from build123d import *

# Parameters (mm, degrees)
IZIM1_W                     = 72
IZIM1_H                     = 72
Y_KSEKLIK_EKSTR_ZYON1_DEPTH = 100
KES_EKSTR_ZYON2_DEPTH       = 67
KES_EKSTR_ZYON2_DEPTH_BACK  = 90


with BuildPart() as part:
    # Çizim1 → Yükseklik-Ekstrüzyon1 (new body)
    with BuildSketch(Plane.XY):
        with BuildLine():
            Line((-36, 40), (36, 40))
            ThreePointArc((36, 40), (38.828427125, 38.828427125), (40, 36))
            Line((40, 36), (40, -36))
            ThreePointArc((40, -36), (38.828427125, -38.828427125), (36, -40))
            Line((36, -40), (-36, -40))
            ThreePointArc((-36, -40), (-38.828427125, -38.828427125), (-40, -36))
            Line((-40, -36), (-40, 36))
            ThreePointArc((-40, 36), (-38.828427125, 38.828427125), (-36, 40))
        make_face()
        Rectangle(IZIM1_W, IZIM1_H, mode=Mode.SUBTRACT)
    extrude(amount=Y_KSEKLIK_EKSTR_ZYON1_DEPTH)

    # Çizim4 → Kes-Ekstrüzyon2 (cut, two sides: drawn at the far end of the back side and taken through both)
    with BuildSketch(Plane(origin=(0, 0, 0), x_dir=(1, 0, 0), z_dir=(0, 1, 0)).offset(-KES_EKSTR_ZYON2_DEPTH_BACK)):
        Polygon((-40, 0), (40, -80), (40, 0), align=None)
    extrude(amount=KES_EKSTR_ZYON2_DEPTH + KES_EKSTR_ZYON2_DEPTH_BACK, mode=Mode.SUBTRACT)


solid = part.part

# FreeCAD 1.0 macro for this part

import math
import FreeCAD as App
import Part
import Sketcher

V = App.Vector
Q = App.Units.Quantity

doc = App.newDocument("Part")
params = doc.addObject("Spreadsheet::Sheet", "Params")
for row, (alias, value) in enumerate([
    ("sketch1_radius", "4 mm"),
    ("sketch1_width", "72 mm"),
    ("pad1_length", "100 mm"),
    ("sketch2_width", "80 mm"),
], start=1):
    params.set(f"A{row}", alias)
    params.set(f"B{row}", "=" + value)
    params.setAlias(f"B{row}", alias)

body = doc.addObject("PartDesign::Body", "Body")

# Sketch on XY plane
sketch1 = doc.addObject("Sketcher::SketchObject", "Sketch")
body.addObject(sketch1)
sketch1.AttachmentSupport = (doc.XY_Plane, [""])
sketch1.MapMode = "FlatFace"
sketch1.addGeometry([
    Part.LineSegment(V(36, 40, 0), V(-36, 40, 0)),  # 0
    Part.ArcOfCircle(Part.Circle(V(-36, 36, 0), V(0, 0, 1), 4), math.radians(90), math.radians(180)),  # 1
    Part.LineSegment(V(-40, 36, 0), V(-40, -36, 0)),  # 2
    Part.ArcOfCircle(Part.Circle(V(-36, -36, 0), V(0, 0, 1), 4), math.radians(180), math.radians(270)),  # 3
    Part.LineSegment(V(-36, -40, 0), V(36, -40, 0)),  # 4
    Part.ArcOfCircle(Part.Circle(V(36, -36, 0), V(0, 0, 1), 4), math.radians(-90), math.radians(0)),  # 5
    Part.LineSegment(V(40, -36, 0), V(40, 36, 0)),  # 6
    Part.ArcOfCircle(Part.Circle(V(36, 36, 0), V(0, 0, 1), 4), math.radians(0), math.radians(90)),  # 7
    Part.LineSegment(V(-36, -36, 0), V(-36, 36, 0)),  # 8
    Part.LineSegment(V(-36, 36, 0), V(36, 36, 0)),  # 9
    Part.LineSegment(V(36, 36, 0), V(36, -36, 0)),  # 10
    Part.LineSegment(V(36, -36, 0), V(-36, -36, 0)),  # 11
], False)
sketch1.addConstraint([
    Sketcher.Constraint("Tangent", 0, 2, 1, 1),
    Sketcher.Constraint("Tangent", 1, 2, 2, 1),
    Sketcher.Constraint("Tangent", 2, 2, 3, 1),
    Sketcher.Constraint("Tangent", 3, 2, 4, 1),
    Sketcher.Constraint("Tangent", 4, 2, 5, 1),
    Sketcher.Constraint("Tangent", 5, 2, 6, 1),
    Sketcher.Constraint("Tangent", 6, 2, 7, 1),
    Sketcher.Constraint("Tangent", 7, 2, 0, 1),
    Sketcher.Constraint("Coincident", 8, 2, 9, 1),
    Sketcher.Constraint("Coincident", 9, 2, 10, 1),
    Sketcher.Constraint("Coincident", 10, 2, 11, 1),
    Sketcher.Constraint("Coincident", 11, 2, 8, 1),
    Sketcher.Constraint("Horizontal", 0),
    Sketcher.Constraint("Vertical", 2),
    Sketcher.Constraint("Horizontal", 4),
    Sketcher.Constraint("Vertical", 6),
    Sketcher.Constraint("Vertical", 8),
    Sketcher.Constraint("Horizontal", 9),
    Sketcher.Constraint("Vertical", 10),
    Sketcher.Constraint("Horizontal", 11),
    Sketcher.Constraint("Coincident", 8, 2, 1, 3),
    Sketcher.Constraint("Coincident", 9, 2, 7, 3),
    Sketcher.Constraint("Coincident", 10, 2, 5, 3),
    Sketcher.Constraint("Equal", 1, 3),
    Sketcher.Constraint("Symmetric", 1, 3, 5, 3, -1, 1),
    Sketcher.Constraint("Equal", 11, 2),
    Sketcher.Constraint("Radius", 1, Q("4 mm")),
    Sketcher.Constraint("DistanceX", 0, 2, 0, 1, Q("72 mm")),
])
sketch1.setExpression("Constraints[26]", "Params.sketch1_radius")
sketch1.setExpression("Constraints[27]", "Params.sketch1_width")
pad1 = doc.addObject("PartDesign::Pad", "Pad")
body.addObject(pad1)
pad1.Profile = sketch1
pad1.setExpression("Length", "Params.pad1_length")

# Sketch on XZ plane
sketch2 = doc.addObject("Sketcher::SketchObject", "Sketch001")
body.addObject(sketch2)
sketch2.AttachmentSupport = (doc.XZ_Plane, [""])
sketch2.MapMode = "FlatFace"
sketch2.addGeometry([
    Part.LineSegment(V(-40, 0, 0), V(40, 80, 0)),
    Part.LineSegment(V(40, 80, 0), V(40, 0, 0)),
    Part.LineSegment(V(40, 0, 0), V(-40, 0, 0)),
], False)
sketch2.addConstraint([
    Sketcher.Constraint("Coincident", 0, 2, 1, 1),
    Sketcher.Constraint("Coincident", 1, 2, 2, 1),
    Sketcher.Constraint("Coincident", 2, 2, 0, 1),
    Sketcher.Constraint("Vertical", 1),
    Sketcher.Constraint("Horizontal", 2),
    Sketcher.Constraint("Symmetric", 1, 2, 2, 2, -1, 1),
    Sketcher.Constraint("Equal", 2, 1),
    Sketcher.Constraint("DistanceX", 2, 2, 2, 1, Q("80 mm")),
])
sketch2.setExpression("Constraints[7]", "Params.sketch2_width")
pocket1 = doc.addObject("PartDesign::Pocket", "Pocket")
body.addObject(pocket1)
pocket1.Profile = sketch2
pocket1.Type = "ThroughAll"
pocket1.Midplane = True

doc.recompute()
